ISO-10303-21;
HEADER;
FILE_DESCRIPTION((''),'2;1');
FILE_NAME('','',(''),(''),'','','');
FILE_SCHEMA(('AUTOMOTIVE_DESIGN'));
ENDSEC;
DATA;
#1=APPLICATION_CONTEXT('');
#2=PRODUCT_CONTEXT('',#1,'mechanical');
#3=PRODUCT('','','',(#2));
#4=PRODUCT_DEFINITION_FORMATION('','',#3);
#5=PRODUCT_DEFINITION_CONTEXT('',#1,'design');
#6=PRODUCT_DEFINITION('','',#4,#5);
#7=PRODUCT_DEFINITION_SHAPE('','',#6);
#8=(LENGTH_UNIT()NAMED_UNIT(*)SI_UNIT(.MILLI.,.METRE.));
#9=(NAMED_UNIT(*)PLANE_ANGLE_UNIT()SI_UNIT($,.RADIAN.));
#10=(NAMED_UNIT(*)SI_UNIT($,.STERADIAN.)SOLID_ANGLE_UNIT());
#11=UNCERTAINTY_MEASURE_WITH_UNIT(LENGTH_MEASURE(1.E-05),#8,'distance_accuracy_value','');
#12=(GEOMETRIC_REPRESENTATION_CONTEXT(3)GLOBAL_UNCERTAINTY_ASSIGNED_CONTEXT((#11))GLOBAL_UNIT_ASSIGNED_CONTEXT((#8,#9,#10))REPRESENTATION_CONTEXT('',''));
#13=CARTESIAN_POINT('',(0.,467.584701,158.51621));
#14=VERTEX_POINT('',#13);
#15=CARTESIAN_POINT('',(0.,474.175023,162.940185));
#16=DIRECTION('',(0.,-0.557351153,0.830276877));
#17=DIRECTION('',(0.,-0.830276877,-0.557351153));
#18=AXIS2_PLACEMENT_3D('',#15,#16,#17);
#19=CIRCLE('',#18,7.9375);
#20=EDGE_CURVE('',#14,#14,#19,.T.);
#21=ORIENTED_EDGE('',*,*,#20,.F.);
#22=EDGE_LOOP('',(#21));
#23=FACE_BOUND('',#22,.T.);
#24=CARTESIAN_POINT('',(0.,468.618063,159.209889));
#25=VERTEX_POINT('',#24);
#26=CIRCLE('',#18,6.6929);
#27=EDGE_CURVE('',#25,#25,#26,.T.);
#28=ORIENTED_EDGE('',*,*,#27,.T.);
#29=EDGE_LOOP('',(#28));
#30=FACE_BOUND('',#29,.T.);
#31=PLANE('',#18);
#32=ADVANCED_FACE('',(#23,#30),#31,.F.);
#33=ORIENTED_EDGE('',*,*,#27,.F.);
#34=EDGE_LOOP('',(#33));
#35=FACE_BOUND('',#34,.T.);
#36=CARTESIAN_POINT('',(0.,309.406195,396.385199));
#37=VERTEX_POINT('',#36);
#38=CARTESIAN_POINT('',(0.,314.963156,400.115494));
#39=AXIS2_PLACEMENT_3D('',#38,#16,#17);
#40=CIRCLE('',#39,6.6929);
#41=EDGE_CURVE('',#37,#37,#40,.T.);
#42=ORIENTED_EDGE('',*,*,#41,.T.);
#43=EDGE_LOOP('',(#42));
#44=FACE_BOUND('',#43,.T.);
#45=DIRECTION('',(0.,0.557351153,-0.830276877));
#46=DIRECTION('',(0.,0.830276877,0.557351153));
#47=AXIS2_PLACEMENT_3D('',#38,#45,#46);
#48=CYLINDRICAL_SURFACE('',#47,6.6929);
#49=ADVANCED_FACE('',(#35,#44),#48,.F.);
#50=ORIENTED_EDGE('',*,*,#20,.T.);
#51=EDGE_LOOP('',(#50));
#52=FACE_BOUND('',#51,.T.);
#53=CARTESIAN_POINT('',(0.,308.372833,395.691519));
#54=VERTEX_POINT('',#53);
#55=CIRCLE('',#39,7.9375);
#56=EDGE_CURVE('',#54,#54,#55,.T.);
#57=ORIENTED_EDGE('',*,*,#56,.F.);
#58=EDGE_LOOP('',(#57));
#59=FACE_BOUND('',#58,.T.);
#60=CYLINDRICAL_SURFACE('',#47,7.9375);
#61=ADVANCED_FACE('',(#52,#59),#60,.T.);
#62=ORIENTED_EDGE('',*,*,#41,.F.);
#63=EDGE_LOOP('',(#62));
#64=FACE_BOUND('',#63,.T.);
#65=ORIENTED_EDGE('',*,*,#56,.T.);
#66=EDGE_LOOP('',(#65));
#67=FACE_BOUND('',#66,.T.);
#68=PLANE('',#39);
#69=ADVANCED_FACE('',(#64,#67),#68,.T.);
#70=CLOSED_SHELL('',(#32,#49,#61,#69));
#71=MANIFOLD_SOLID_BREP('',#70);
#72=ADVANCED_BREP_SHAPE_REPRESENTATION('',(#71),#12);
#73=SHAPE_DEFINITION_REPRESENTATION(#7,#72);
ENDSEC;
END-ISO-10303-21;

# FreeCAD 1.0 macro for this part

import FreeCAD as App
import Part
import Sketcher
from FreeCAD import Vector
Q = App.Units.Quantity

doc = App.newDocument("Part")
body = doc.addObject("PartDesign::Body", "Body")

# Sketch on an angled plane
sketch1 = doc.addObject("Sketcher::SketchObject", "Sketch")
body.addObject(sketch1)
sketch1.Placement = App.Placement(Vector(0, 474.175023, 162.940185), App.Rotation(Vector(1, 0, 0), Vector(0, 0.830276877, 0.557351153), Vector(0, -0.557351153, 0.830276877), "ZXY"))
sketch1.addGeometry([
    Part.Circle(Vector(0, 0, 0), Vector(0, 0, 1), 8),
    Part.Circle(Vector(0, 0, 0), Vector(0, 0, 1), 7),
], False)
sketch1.addConstraint([
    Sketcher.Constraint("Coincident", 0, 3, -1, 1),
    Sketcher.Constraint("Coincident", 1, 3, -1, 1),
    Sketcher.Constraint("Diameter", 0, Q("0.625 in")),
    Sketcher.Constraint("Diameter", 1, Q("0.527 in")),
])
pad1 = doc.addObject("PartDesign::Pad", "Pad")
body.addObject(pad1)
pad1.Profile = sketch1
pad1.Length = 285.658093

doc.recompute()
